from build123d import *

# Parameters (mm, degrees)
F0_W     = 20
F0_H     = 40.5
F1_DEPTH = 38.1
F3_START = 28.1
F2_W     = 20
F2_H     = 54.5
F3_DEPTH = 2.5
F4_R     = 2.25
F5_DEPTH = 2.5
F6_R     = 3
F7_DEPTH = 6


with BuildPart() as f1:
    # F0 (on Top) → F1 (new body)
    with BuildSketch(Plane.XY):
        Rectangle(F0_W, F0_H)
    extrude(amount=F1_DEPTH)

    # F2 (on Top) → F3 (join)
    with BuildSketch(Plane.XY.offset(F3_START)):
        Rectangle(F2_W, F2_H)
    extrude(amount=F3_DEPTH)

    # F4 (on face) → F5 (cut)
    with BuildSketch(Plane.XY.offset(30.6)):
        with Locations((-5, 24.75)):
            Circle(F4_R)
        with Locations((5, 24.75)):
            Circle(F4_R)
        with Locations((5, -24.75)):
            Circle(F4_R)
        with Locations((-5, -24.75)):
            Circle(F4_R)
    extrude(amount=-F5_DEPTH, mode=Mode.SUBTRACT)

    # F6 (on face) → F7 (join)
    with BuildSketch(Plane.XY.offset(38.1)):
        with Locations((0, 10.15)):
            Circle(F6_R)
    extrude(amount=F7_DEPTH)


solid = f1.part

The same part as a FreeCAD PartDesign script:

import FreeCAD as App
import Part
import Sketcher

V = App.Vector


def add_polygon(sketch, points):
    """Adds a closed chain of lines whose ends are joined by coincident constraints."""
    first, n = sketch.GeometryCount, len(points)
    for a, b in zip(points, points[1:] + points[:1]):
        sketch.addGeometry(Part.LineSegment(App.Vector(*a, 0), App.Vector(*b, 0)), False)
    for i in range(n):
        sketch.addConstraint(Sketcher.Constraint("Coincident", first + i, 2, first + (i + 1) % n, 1))

doc = App.newDocument("Part")
body = doc.addObject("PartDesign::Body", "Body")

# Sketch on XY plane
sketch1 = body.newObject("Sketcher::SketchObject", "Sketch")
sketch1.AttachmentSupport = (doc.getObject("XY_Plane"), [""])
sketch1.MapMode = "FlatFace"
add_polygon(sketch1, [(-10, 20), (-10, -20), (10, -20), (10, 20)])  # lines 0-3
sketch1.addConstraint(Sketcher.Constraint("Vertical", 0))
sketch1.addConstraint(Sketcher.Constraint("Horizontal", 1))
sketch1.addConstraint(Sketcher.Constraint("Vertical", 2))
sketch1.addConstraint(Sketcher.Constraint("Horizontal", 3))
sketch1.addConstraint(Sketcher.Constraint("Symmetric", 0, 2, 2, 2, -1, 1))
sketch1.addConstraint(Sketcher.Constraint("DistanceX", 1, 1, 1, 2, 20.0))
sketch1.addConstraint(Sketcher.Constraint("DistanceY", 0, 2, 0, 1, 40.5))
pad1 = body.newObject("PartDesign::Pad", "Pad")
pad1.Profile = sketch1
pad1.Length = 38.1

# Sketch on XY plane
sketch2 = body.newObject("Sketcher::SketchObject", "Sketch001")
sketch2.AttachmentSupport = (doc.getObject("XY_Plane"), [""])
sketch2.MapMode = "FlatFace"
sketch2.AttachmentOffset = App.Placement(V(0, 0, 28.1), App.Rotation())
add_polygon(sketch2, [(-10, 27), (-10, -27), (10, -27), (10, 27)])  # lines 0-3
sketch2.addConstraint(Sketcher.Constraint("Vertical", 0))
sketch2.addConstraint(Sketcher.Constraint("Horizontal", 1))
sketch2.addConstraint(Sketcher.Constraint("Vertical", 2))
sketch2.addConstraint(Sketcher.Constraint("Horizontal", 3))
sketch2.addConstraint(Sketcher.Constraint("Symmetric", 0, 2, 2, 2, -1, 1))
sketch2.addConstraint(Sketcher.Constraint("DistanceX", 1, 1, 1, 2, 20.0))
sketch2.addConstraint(Sketcher.Constraint("DistanceY", 0, 2, 0, 1, 54.5))
pad2 = body.newObject("PartDesign::Pad", "Pad001")
pad2.Profile = sketch2
pad2.Length = 2.5

# Sketch on XY plane
sketch3 = body.newObject("Sketcher::SketchObject", "Sketch002")
sketch3.AttachmentSupport = (doc.getObject("XY_Plane"), [""])
sketch3.MapMode = "FlatFace"
sketch3.AttachmentOffset = App.Placement(V(0, 0, 30.6), App.Rotation())
sketch3.addGeometry(Part.Circle(V(-5, 24.8, 0), V(0, 0, 1), 2.2), False)
sketch3.addGeometry(Part.Circle(V(5, 24.8, 0), V(0, 0, 1), 2.2), False)
sketch3.addGeometry(Part.Circle(V(5, -24.8, 0), V(0, 0, 1), 2.2), False)
sketch3.addGeometry(Part.Circle(V(-5, -24.8, 0), V(0, 0, 1), 2.2), False)
sketch3.addConstraint(Sketcher.Constraint("Equal", 0, 1))
sketch3.addConstraint(Sketcher.Constraint("Equal", 1, 2))
sketch3.addConstraint(Sketcher.Constraint("Equal", 2, 3))
sketch3.addConstraint(Sketcher.Constraint("Symmetric", 0, 3, 2, 3, -1, 1))
sketch3.addConstraint(Sketcher.Constraint("Symmetric", 1, 3, 3, 3, -1, 1))
sketch3.addConstraint(Sketcher.Constraint("Symmetric", 0, 3, 1, 3, -2))
sketch3.addConstraint(Sketcher.Constraint("Diameter", 0, 4.5))
sketch3.addConstraint(Sketcher.Constraint("DistanceX", 0, 3, -1, 1, 5.0))
sketch3.addConstraint(Sketcher.Constraint("DistanceY", 2, 3, 1, 3, 49.5))
pocket1 = body.newObject("PartDesign::Pocket", "Pocket")
pocket1.Profile = sketch3
pocket1.Length = 2.5

# Sketch on XY plane
sketch4 = body.newObject("Sketcher::SketchObject", "Sketch003")
sketch4.AttachmentSupport = (doc.getObject("XY_Plane"), [""])
sketch4.MapMode = "FlatFace"
sketch4.AttachmentOffset = App.Placement(V(0, 0, 38.1), App.Rotation())
sketch4.addGeometry(Part.Circle(V(0, 10.2, 0), V(0, 0, 1), 3), False)
sketch4.addConstraint(Sketcher.Constraint("PointOnObject", 0, 3, -2))
sketch4.addConstraint(Sketcher.Constraint("Diameter", 0, 6.0))
sketch4.addConstraint(Sketcher.Constraint("DistanceY", -1, 1, 0, 3, 10.15))
pad3 = body.newObject("PartDesign::Pad", "Pad002")
pad3.Profile = sketch4
pad3.Length = 6

doc.recompute()
